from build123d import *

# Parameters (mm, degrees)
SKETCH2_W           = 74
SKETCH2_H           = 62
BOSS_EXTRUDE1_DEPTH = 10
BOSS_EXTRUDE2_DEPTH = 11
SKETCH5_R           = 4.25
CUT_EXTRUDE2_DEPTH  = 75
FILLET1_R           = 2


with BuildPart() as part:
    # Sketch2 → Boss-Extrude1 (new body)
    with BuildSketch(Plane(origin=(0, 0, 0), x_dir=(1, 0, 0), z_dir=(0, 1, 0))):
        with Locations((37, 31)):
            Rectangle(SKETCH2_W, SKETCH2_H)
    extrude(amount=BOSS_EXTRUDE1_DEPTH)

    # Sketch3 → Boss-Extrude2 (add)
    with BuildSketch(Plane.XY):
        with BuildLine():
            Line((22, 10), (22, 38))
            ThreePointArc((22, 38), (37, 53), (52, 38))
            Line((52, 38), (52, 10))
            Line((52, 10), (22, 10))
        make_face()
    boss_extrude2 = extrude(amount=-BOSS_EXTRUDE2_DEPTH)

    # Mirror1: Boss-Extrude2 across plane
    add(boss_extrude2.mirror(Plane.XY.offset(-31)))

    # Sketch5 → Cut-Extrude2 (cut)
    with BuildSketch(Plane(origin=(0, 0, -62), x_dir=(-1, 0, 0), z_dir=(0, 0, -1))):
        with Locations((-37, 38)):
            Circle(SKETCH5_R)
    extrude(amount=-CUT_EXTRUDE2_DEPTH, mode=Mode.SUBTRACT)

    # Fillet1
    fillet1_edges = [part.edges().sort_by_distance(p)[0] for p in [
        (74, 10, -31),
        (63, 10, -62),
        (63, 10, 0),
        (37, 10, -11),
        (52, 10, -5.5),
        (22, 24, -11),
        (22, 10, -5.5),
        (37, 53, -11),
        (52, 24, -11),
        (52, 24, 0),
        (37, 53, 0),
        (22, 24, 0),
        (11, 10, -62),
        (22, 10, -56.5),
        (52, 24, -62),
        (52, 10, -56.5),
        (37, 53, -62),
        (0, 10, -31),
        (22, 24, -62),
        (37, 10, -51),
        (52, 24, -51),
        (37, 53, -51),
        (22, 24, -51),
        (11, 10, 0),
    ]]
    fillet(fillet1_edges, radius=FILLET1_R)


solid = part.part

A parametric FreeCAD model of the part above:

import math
import FreeCAD as App
import Part
import Sketcher
from FreeCAD import Vector


def edges_at(feature, points):
    """Names of the edges that pass closest to the given points."""
    edges = feature.Shape.Edges
    near = lambda p: min(range(len(edges)), key=lambda i: edges[i].distToShape(Part.Vertex(*p))[0])
    return sorted({f"Edge{near(p) + 1}" for p in points})

doc = App.newDocument("Part")
body = doc.addObject("PartDesign::Body", "Body")

# Sketch on XZ plane
sketch1 = doc.addObject("Sketcher::SketchObject", "Sketch")
body.addObject(sketch1)
sketch1.AttachmentSupport = (doc.XZ_Plane, [""])
sketch1.MapMode = "FlatFace"
sketch1.addGeometry([
    Part.LineSegment(Vector(0, -62, 0), Vector(0, 0, 0)),
    Part.LineSegment(Vector(0, 0, 0), Vector(74, 0, 0)),
    Part.LineSegment(Vector(74, 0, 0), Vector(74, -62, 0)),
    Part.LineSegment(Vector(74, -62, 0), Vector(0, -62, 0)),
], False)
sketch1.addConstraint([
    Sketcher.Constraint("Coincident", 0, 2, 1, 1),
    Sketcher.Constraint("Coincident", 1, 2, 2, 1),
    Sketcher.Constraint("Coincident", 2, 2, 3, 1),
    Sketcher.Constraint("Coincident", 3, 2, 0, 1),
    Sketcher.Constraint("Vertical", 0),
    Sketcher.Constraint("Horizontal", 1),
    Sketcher.Constraint("Vertical", 2),
    Sketcher.Constraint("Horizontal", 3),
    Sketcher.Constraint("Coincident", 0, 2, -1, 1),
    Sketcher.Constraint("DistanceX", 1, 1, 1, 2, 74.0),
    Sketcher.Constraint("DistanceY", 0, 1, 0, 2, 62.0),
])
pad1 = doc.addObject("PartDesign::Pad", "Pad")
body.addObject(pad1)
pad1.Profile = sketch1
pad1.Length = 10
pad1.Reversed = True

# Sketch on XY plane
sketch2 = doc.addObject("Sketcher::SketchObject", "Sketch001")
body.addObject(sketch2)
sketch2.AttachmentSupport = (doc.XY_Plane, [""])
sketch2.MapMode = "FlatFace"
sketch2.addGeometry([
    Part.LineSegment(Vector(22, 38, 0), Vector(22, 10, 0)),
    Part.LineSegment(Vector(22, 10, 0), Vector(52, 10, 0)),
    Part.LineSegment(Vector(52, 10, 0), Vector(52, 38, 0)),
    Part.ArcOfCircle(Part.Circle(Vector(37, 38, 0), Vector(0, 0, 1), 15), math.radians(0), math.radians(180)),
], False)
sketch2.addConstraint([
    Sketcher.Constraint("Coincident", 0, 2, 1, 1),
    Sketcher.Constraint("Coincident", 1, 2, 2, 1),
    Sketcher.Constraint("Tangent", 2, 2, 3, 1),
    Sketcher.Constraint("Tangent", 3, 2, 0, 1),
    Sketcher.Constraint("Vertical", 0),
    Sketcher.Constraint("Horizontal", 1),
    Sketcher.Constraint("Vertical", 2),
    Sketcher.Constraint("Radius", 3, 15.0),
    Sketcher.Constraint("DistanceY", 0, 2, 0, 1, 28.0),
    Sketcher.Constraint("DistanceX", -1, 1, 3, 3, 37.0),
    Sketcher.Constraint("DistanceY", -1, 1, 3, 3, 38.0),
])
pad2 = doc.addObject("PartDesign::Pad", "Pad001")
body.addObject(pad2)
pad2.Profile = sketch2
pad2.Length = 11
pad2.Reversed = True
doc.recompute()

datumplane = doc.addObject("PartDesign::Plane", "DatumPlane")
body.addObject(datumplane)
datumplane.AttachmentSupport = (doc.XY_Plane, [""])
datumplane.MapMode = "FlatFace"
datumplane.AttachmentOffset = App.Placement(Vector(0, 0, -31), App.Rotation())
mirrored = doc.addObject("PartDesign::Mirrored", "Mirrored")
body.addObject(mirrored)
mirrored.Originals = [pad2]
mirrored.MirrorPlane = (datumplane, [""])
body.Tip = mirrored

# Sketch on XY plane
sketch3 = doc.addObject("Sketcher::SketchObject", "Sketch002")
body.addObject(sketch3)
sketch3.AttachmentSupport = (doc.XY_Plane, [""])
sketch3.MapMode = "FlatFace"
sketch3.AttachmentOffset = App.Placement(Vector(0, 0, -62), App.Rotation())
sketch3.addGeometry(Part.Circle(Vector(37, 38, 0), Vector(0, 0, 1), 4.2), False)
sketch3.addConstraint([
    Sketcher.Constraint("Diameter", 0, 8.5),
    Sketcher.Constraint("DistanceX", -1, 1, 0, 3, 37.0),
    Sketcher.Constraint("DistanceY", -1, 1, 0, 3, 38.0),
])
pocket1 = doc.addObject("PartDesign::Pocket", "Pocket")
body.addObject(pocket1)
pocket1.Profile = sketch3
pocket1.Length = 75
pocket1.Reversed = True
doc.recompute()

fillet = doc.addObject("PartDesign::Fillet", "Fillet")
body.addObject(fillet)
fillet.Base = (pocket1, edges_at(pocket1, [
    (74, 10, -31),
    (63, 10, -62),
    (63, 10, 0),
    (37, 10, -11),
    (52, 10, -5.5),
    (22, 24, -11),
    (22, 10, -5.5),
    (37, 53, -11),
    (52, 24, -11),
    (52, 24, 0),
    (37, 53, 0),
    (22, 24, 0),
    (11, 10, -62),
    (22, 10, -56.5),
    (52, 24, -62),
    (52, 10, -56.5),
    (37, 53, -62),
    (0, 10, -31),
    (22, 24, -62),
    (37, 10, -51),
    (52, 24, -51),
    (37, 53, -51),
    (22, 24, -51),
    (11, 10, 0),
]))
fillet.Radius = 2

doc.recompute()
